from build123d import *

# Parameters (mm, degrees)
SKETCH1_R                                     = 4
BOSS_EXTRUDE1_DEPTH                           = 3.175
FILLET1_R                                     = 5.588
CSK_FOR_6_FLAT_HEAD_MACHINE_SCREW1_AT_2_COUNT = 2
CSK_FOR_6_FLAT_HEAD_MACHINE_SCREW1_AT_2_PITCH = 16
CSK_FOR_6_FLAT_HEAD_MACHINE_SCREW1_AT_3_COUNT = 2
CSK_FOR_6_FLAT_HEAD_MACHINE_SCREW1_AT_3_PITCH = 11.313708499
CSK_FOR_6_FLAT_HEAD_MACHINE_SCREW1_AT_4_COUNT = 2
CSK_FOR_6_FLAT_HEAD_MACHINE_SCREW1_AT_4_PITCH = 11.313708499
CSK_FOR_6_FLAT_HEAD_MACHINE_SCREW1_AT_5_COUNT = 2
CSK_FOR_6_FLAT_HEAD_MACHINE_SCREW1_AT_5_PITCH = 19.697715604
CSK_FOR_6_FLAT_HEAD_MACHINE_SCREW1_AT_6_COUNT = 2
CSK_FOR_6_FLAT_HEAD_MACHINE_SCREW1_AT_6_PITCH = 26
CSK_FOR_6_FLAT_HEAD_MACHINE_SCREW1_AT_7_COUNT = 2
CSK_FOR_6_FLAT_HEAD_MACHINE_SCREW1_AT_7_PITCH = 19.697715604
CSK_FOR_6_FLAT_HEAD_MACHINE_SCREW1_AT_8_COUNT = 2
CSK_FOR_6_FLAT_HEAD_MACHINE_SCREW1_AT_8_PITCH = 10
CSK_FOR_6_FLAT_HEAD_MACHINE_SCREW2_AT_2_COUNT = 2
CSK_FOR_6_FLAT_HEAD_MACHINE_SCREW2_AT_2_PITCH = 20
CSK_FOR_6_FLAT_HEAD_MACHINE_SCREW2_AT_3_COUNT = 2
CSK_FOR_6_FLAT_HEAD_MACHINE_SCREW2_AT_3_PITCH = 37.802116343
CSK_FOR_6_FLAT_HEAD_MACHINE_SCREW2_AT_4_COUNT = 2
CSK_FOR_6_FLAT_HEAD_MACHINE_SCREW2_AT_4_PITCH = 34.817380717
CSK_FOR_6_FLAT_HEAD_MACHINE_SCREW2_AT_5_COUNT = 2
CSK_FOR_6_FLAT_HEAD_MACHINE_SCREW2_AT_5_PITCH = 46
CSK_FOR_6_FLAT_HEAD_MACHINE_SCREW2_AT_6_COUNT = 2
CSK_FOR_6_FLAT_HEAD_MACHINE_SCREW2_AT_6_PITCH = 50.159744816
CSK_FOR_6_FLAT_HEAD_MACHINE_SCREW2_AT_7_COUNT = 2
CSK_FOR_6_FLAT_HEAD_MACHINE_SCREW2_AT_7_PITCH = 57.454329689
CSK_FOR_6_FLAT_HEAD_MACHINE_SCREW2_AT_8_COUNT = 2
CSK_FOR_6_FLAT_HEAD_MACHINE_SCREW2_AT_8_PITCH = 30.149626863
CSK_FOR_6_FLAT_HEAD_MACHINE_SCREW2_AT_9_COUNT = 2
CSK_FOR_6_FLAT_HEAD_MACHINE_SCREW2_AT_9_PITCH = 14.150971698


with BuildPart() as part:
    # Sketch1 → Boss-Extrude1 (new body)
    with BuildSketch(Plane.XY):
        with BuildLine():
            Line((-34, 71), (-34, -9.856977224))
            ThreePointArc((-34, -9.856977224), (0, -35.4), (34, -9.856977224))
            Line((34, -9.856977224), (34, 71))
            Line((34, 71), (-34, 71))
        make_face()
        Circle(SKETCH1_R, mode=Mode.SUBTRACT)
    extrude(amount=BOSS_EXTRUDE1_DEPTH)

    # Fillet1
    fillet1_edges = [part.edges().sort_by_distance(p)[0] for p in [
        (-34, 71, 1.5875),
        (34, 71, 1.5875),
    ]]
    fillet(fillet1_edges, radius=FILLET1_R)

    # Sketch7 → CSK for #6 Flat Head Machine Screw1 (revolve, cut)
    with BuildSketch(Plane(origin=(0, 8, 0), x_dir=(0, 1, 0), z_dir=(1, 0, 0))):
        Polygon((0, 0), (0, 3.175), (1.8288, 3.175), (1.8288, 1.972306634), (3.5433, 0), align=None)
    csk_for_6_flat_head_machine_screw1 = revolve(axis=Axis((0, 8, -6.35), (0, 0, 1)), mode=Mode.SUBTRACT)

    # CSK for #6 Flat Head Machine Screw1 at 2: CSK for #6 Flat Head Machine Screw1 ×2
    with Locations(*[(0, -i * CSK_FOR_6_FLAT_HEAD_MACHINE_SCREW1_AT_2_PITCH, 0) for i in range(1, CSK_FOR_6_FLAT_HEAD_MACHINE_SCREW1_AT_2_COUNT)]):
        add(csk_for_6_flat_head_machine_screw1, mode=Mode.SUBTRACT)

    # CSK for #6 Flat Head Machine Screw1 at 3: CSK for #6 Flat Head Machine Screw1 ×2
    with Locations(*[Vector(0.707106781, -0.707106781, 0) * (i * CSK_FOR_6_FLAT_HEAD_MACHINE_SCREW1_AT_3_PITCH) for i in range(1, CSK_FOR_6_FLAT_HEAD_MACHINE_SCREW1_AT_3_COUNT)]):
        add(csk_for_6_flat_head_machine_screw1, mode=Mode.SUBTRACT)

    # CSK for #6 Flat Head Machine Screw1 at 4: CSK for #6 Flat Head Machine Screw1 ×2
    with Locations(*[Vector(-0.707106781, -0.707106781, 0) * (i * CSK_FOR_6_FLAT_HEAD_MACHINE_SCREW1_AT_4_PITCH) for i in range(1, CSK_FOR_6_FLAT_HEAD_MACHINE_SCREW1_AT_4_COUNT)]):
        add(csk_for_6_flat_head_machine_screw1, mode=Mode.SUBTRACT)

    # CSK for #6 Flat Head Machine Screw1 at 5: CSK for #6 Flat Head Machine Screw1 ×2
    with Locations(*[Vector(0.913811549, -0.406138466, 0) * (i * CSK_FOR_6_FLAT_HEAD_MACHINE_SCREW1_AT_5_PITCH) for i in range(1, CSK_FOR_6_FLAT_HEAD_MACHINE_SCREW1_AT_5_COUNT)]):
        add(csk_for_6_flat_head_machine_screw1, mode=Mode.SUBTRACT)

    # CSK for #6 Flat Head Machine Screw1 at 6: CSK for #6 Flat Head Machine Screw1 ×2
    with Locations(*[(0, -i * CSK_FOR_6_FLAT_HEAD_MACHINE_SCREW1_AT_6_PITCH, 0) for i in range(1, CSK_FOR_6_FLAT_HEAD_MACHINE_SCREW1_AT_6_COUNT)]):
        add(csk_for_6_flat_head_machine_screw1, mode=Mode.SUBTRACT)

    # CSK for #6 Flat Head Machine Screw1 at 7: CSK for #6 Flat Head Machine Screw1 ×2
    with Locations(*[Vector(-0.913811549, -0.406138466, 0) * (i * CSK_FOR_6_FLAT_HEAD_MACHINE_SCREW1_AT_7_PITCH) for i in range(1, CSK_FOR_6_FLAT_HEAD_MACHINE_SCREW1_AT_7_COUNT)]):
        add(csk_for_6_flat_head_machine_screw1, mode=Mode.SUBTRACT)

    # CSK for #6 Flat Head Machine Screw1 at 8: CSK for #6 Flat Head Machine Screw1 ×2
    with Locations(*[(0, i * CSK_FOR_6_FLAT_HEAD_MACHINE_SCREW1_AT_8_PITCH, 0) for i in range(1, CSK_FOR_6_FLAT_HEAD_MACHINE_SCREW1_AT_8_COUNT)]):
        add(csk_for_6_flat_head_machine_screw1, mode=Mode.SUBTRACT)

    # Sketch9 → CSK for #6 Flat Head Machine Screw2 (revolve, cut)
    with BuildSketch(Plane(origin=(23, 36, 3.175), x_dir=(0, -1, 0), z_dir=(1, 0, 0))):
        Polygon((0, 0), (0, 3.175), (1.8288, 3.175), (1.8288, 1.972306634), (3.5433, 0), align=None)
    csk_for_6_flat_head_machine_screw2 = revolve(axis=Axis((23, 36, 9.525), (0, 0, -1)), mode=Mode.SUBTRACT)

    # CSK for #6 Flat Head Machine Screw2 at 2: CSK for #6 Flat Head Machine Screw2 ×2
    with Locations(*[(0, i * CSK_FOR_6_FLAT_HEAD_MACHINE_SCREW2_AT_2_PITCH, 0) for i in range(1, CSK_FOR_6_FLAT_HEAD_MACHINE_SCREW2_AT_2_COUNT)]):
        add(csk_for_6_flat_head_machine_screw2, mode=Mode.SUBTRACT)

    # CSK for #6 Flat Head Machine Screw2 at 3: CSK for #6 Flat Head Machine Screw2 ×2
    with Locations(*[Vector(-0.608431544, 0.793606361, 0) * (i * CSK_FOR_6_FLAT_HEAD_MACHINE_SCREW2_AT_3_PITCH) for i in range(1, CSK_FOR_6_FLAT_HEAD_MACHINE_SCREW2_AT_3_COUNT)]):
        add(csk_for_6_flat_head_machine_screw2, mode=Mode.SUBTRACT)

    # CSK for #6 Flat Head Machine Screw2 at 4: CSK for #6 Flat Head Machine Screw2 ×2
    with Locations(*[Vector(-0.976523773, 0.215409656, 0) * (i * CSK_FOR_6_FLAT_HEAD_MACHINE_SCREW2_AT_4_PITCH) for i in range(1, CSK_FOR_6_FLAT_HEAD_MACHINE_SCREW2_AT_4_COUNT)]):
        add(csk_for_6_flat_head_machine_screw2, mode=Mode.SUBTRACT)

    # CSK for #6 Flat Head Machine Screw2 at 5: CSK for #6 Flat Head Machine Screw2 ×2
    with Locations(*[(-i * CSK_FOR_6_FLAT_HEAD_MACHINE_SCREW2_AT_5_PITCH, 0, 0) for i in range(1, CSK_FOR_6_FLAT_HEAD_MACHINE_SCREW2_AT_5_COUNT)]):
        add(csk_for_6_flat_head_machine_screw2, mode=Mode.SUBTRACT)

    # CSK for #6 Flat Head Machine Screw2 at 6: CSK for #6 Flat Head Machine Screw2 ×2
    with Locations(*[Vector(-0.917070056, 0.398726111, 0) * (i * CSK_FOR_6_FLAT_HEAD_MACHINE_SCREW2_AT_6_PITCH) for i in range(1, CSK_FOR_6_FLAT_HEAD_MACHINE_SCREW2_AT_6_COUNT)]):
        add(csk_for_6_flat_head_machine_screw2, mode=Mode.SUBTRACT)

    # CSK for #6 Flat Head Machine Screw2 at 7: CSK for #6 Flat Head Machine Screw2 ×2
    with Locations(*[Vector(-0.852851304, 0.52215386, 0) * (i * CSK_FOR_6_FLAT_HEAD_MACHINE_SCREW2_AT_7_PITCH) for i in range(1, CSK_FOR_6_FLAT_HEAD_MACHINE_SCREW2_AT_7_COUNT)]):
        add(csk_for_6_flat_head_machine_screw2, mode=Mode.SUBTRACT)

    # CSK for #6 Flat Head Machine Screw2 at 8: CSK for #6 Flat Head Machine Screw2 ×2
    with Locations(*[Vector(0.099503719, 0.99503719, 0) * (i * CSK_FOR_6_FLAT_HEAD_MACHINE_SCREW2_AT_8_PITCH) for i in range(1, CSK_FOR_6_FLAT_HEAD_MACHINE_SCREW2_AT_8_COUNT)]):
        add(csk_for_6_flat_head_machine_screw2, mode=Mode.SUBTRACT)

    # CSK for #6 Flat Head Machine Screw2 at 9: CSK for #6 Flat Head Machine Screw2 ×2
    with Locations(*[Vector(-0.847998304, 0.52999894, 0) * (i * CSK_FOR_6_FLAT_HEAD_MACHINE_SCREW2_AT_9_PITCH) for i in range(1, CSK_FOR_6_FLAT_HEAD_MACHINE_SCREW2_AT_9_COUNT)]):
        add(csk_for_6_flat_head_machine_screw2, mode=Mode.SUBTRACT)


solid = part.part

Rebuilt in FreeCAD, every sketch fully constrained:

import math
import FreeCAD as App
import Part
import Sketcher
Q = App.Units.Quantity


def edges_at(feature, points):
    """Names of the edges that pass closest to the given points."""
    edges = feature.Shape.Edges
    near = lambda p: min(range(len(edges)), key=lambda i: edges[i].distToShape(Part.Vertex(*p))[0])
    return sorted({f"Edge{near(p) + 1}" for p in points})


def add_polygon(sketch, points):
    """Adds a closed chain of lines whose ends are joined by coincident constraints."""
    first, n = sketch.GeometryCount, len(points)
    for a, b in zip(points, points[1:] + points[:1]):
        sketch.addGeometry(Part.LineSegment(App.Vector(*a, 0), App.Vector(*b, 0)), False)
    for i in range(n):
        sketch.addConstraint(Sketcher.Constraint("Coincident", first + i, 2, first + (i + 1) % n, 1))

doc = App.newDocument("Part")
body = doc.addObject("PartDesign::Body", "Body")

# Sketch on XY plane
sketch1 = body.newObject("Sketcher::SketchObject", "Sketch")
sketch1.AttachmentSupport = (doc.getObject("XY_Plane"), [""])
sketch1.MapMode = "FlatFace"
sketch1.addGeometry(Part.LineSegment(App.Vector(-34, 71, 0), App.Vector(-34, -9.9, 0)), False)
sketch1.addGeometry(Part.ArcOfCircle(Part.Circle(App.Vector(0, 0, 0), App.Vector(0, 0, 1), 35.4), math.radians(-164), math.radians(-16)), False)
sketch1.addGeometry(Part.LineSegment(App.Vector(34, -9.9, 0), App.Vector(34, 71, 0)), False)
sketch1.addGeometry(Part.LineSegment(App.Vector(34, 71, 0), App.Vector(-34, 71, 0)), False)
sketch1.addGeometry(Part.Circle(App.Vector(0, 0, 0), App.Vector(0, 0, 1), 4), False)
sketch1.addConstraint(Sketcher.Constraint("Coincident", 0, 2, 1, 1))
sketch1.addConstraint(Sketcher.Constraint("Coincident", 1, 2, 2, 1))
sketch1.addConstraint(Sketcher.Constraint("Coincident", 2, 2, 3, 1))
sketch1.addConstraint(Sketcher.Constraint("Coincident", 3, 2, 0, 1))
sketch1.addConstraint(Sketcher.Constraint("Vertical", 0))
sketch1.addConstraint(Sketcher.Constraint("Vertical", 2))
sketch1.addConstraint(Sketcher.Constraint("Horizontal", 3))
sketch1.addConstraint(Sketcher.Constraint("Coincident", 1, 3, -1, 1))
sketch1.addConstraint(Sketcher.Constraint("Coincident", 4, 3, -1, 1))
sketch1.addConstraint(Sketcher.Constraint("Horizontal", 0, 2, 1, 2))
sketch1.addConstraint(Sketcher.Constraint("Diameter", 4, 8.0))
sketch1.addConstraint(Sketcher.Constraint("Radius", 1, 35.4))
sketch1.addConstraint(Sketcher.Constraint("DistanceX", 3, 2, 3, 1, 68.0))
sketch1.addConstraint(Sketcher.Constraint("DistanceY", -1, 1, 2, 2, 71.0))
pad1 = body.newObject("PartDesign::Pad", "Pad")
pad1.Profile = sketch1
pad1.Length = 3.175
doc.recompute()

fillet = body.newObject("PartDesign::Fillet", "Fillet")
fillet.Base = (pad1, edges_at(pad1, [(-34, 71, 1.587), (34, 71, 1.587)]))
fillet.Radius = 5.588

# Sketch on YZ plane
sketch2 = body.newObject("Sketcher::SketchObject", "Sketch001")
sketch2.AttachmentSupport = (doc.getObject("YZ_Plane"), [""])
sketch2.MapMode = "FlatFace"
add_polygon(sketch2, [(8, 3.2), (8, 0), (11.5, 0), (9.8, 2), (9.8, 3.2)])  # lines 0-4
sketch2.addGeometry(Part.LineSegment(App.Vector(8, 0, 0), App.Vector(8, 3.2, 0)), True)  # axis
sketch2.addConstraint(Sketcher.Constraint("Vertical", 0))
sketch2.addConstraint(Sketcher.Constraint("Horizontal", 1))
sketch2.addConstraint(Sketcher.Constraint("Vertical", 3))
sketch2.addConstraint(Sketcher.Constraint("Horizontal", 4))
sketch2.addConstraint(Sketcher.Constraint("Vertical", 5))
sketch2.addConstraint(Sketcher.Constraint("Coincident", 5, 1, 0, 2))
sketch2.addConstraint(Sketcher.Constraint("PointOnObject", 0, 2, -1))
sketch2.addConstraint(Sketcher.Constraint("Horizontal", 3, 2, 5, 2))
sketch2.addConstraint(Sketcher.Constraint("Angle", 2, Q("131 deg")))
sketch2.addConstraint(Sketcher.Constraint("DistanceX", -1, 1, 0, 2, 8.0))
sketch2.addConstraint(Sketcher.Constraint("DistanceY", 0, 2, 0, 1, 3.175))
sketch2.addConstraint(Sketcher.Constraint("DistanceX", 1, 1, 1, 2, 3.5433))
sketch2.addConstraint(Sketcher.Constraint("DistanceX", 4, 2, 4, 1, 1.8288))
groove = body.newObject("PartDesign::Groove", "Groove")
groove.Profile = sketch2
groove.ReferenceAxis = (sketch2, ["Axis0"])
groove.Angle = 360
doc.recompute()

linearpattern = body.newObject("PartDesign::LinearPattern", "LinearPattern")
linearpattern.Originals = [groove]
linearpattern.Direction = (doc.getObject("Y_Axis"), [""])
linearpattern.Mode = "offset"
linearpattern.Offset = 16
linearpattern.Occurrences = 2
linearpattern.Reversed = True
body.Tip = linearpattern
doc.recompute()

datumline = body.newObject("PartDesign::Line", "DatumLine")
datumline.Placement = App.Placement(App.Vector(0, 0, 0), App.Rotation(App.Vector(0, 0, 1), App.Vector(0.707106781, -0.707106781, 0)))
linearpattern2 = body.newObject("PartDesign::LinearPattern", "LinearPattern001")
linearpattern2.Originals = [groove]
linearpattern2.Direction = (datumline, [""])
linearpattern2.Mode = "offset"
linearpattern2.Offset = 11.313708
linearpattern2.Occurrences = 2
body.Tip = linearpattern2
doc.recompute()

datumline2 = body.newObject("PartDesign::Line", "DatumLine001")
datumline2.Placement = App.Placement(App.Vector(0, 0, 0), App.Rotation(App.Vector(0, 0, 1), App.Vector(-0.707106781, -0.707106781, 0)))
linearpattern3 = body.newObject("PartDesign::LinearPattern", "LinearPattern002")
linearpattern3.Originals = [groove]
linearpattern3.Direction = (datumline2, [""])
linearpattern3.Mode = "offset"
linearpattern3.Offset = 11.313708
linearpattern3.Occurrences = 2
body.Tip = linearpattern3
doc.recompute()

datumline3 = body.newObject("PartDesign::Line", "DatumLine002")
datumline3.Placement = App.Placement(App.Vector(0, 0, 0), App.Rotation(App.Vector(0, 0, 1), App.Vector(0.913811549, -0.406138466, 0)))
linearpattern4 = body.newObject("PartDesign::LinearPattern", "LinearPattern003")
linearpattern4.Originals = [groove]
linearpattern4.Direction = (datumline3, [""])
linearpattern4.Mode = "offset"
linearpattern4.Offset = 19.697716
linearpattern4.Occurrences = 2
body.Tip = linearpattern4
doc.recompute()

linearpattern5 = body.newObject("PartDesign::LinearPattern", "LinearPattern004")
linearpattern5.Originals = [groove]
linearpattern5.Direction = (doc.getObject("Y_Axis"), [""])
linearpattern5.Mode = "offset"
linearpattern5.Offset = 26
linearpattern5.Occurrences = 2
linearpattern5.Reversed = True
body.Tip = linearpattern5
doc.recompute()

datumline4 = body.newObject("PartDesign::Line", "DatumLine003")
datumline4.Placement = App.Placement(App.Vector(0, 0, 0), App.Rotation(App.Vector(0, 0, 1), App.Vector(-0.913811549, -0.406138466, 0)))
linearpattern6 = body.newObject("PartDesign::LinearPattern", "LinearPattern005")
linearpattern6.Originals = [groove]
linearpattern6.Direction = (datumline4, [""])
linearpattern6.Mode = "offset"
linearpattern6.Offset = 19.697716
linearpattern6.Occurrences = 2
body.Tip = linearpattern6
doc.recompute()

linearpattern7 = body.newObject("PartDesign::LinearPattern", "LinearPattern006")
linearpattern7.Originals = [groove]
linearpattern7.Direction = (doc.getObject("Y_Axis"), [""])
linearpattern7.Mode = "offset"
linearpattern7.Offset = 10
linearpattern7.Occurrences = 2
body.Tip = linearpattern7

# Sketch on YZ plane
sketch3 = body.newObject("Sketcher::SketchObject", "Sketch002")
sketch3.AttachmentSupport = (doc.getObject("YZ_Plane"), [""])
sketch3.MapMode = "FlatFace"
sketch3.AttachmentOffset = App.Placement(App.Vector(0, 0, 23), App.Rotation())
add_polygon(sketch3, [(36, 0), (36, 3.2), (32.5, 3.2), (34.2, 1.2), (34.2, 0)])  # lines 0-4
sketch3.addGeometry(Part.LineSegment(App.Vector(36, 3.2, 0), App.Vector(36, 0, 0)), True)  # axis
sketch3.addConstraint(Sketcher.Constraint("Vertical", 0))
sketch3.addConstraint(Sketcher.Constraint("Horizontal", 1))
sketch3.addConstraint(Sketcher.Constraint("Vertical", 3))
sketch3.addConstraint(Sketcher.Constraint("Horizontal", 4))
sketch3.addConstraint(Sketcher.Constraint("Vertical", 5))
sketch3.addConstraint(Sketcher.Constraint("Coincident", 5, 1, 0, 2))
sketch3.addConstraint(Sketcher.Constraint("PointOnObject", 3, 2, -1))
sketch3.addConstraint(Sketcher.Constraint("PointOnObject", 5, 2, -1))
sketch3.addConstraint(Sketcher.Constraint("Angle", 2, Q("-49 deg")))
sketch3.addConstraint(Sketcher.Constraint("DistanceX", -1, 1, 0, 2, 36.0))
sketch3.addConstraint(Sketcher.Constraint("DistanceY", 0, 1, 0, 2, 3.175))
sketch3.addConstraint(Sketcher.Constraint("DistanceX", 1, 2, 1, 1, 3.5433))
sketch3.addConstraint(Sketcher.Constraint("DistanceX", 4, 1, 4, 2, 1.8288))
groove2 = body.newObject("PartDesign::Groove", "Groove001")
groove2.Profile = sketch3
groove2.ReferenceAxis = (sketch3, ["Axis0"])
groove2.Angle = 360
doc.recompute()

linearpattern8 = body.newObject("PartDesign::LinearPattern", "LinearPattern007")
linearpattern8.Originals = [groove2]
linearpattern8.Direction = (doc.getObject("Y_Axis"), [""])
linearpattern8.Mode = "offset"
linearpattern8.Offset = 20
linearpattern8.Occurrences = 2
body.Tip = linearpattern8
doc.recompute()

datumline5 = body.newObject("PartDesign::Line", "DatumLine004")
datumline5.Placement = App.Placement(App.Vector(0, 0, 0), App.Rotation(App.Vector(0, 0, 1), App.Vector(-0.608431544, 0.793606361, 0)))
linearpattern9 = body.newObject("PartDesign::LinearPattern", "LinearPattern008")
linearpattern9.Originals = [groove2]
linearpattern9.Direction = (datumline5, [""])
linearpattern9.Mode = "offset"
linearpattern9.Offset = 37.802116
linearpattern9.Occurrences = 2
body.Tip = linearpattern9
doc.recompute()

datumline6 = body.newObject("PartDesign::Line", "DatumLine005")
datumline6.Placement = App.Placement(App.Vector(0, 0, 0), App.Rotation(App.Vector(0, 0, 1), App.Vector(-0.976523773, 0.215409656, 0)))
linearpattern10 = body.newObject("PartDesign::LinearPattern", "LinearPattern009")
linearpattern10.Originals = [groove2]
linearpattern10.Direction = (datumline6, [""])
linearpattern10.Mode = "offset"
linearpattern10.Offset = 34.817381
linearpattern10.Occurrences = 2
body.Tip = linearpattern10
doc.recompute()

linearpattern11 = body.newObject("PartDesign::LinearPattern", "LinearPattern010")
linearpattern11.Originals = [groove2]
linearpattern11.Direction = (doc.getObject("X_Axis"), [""])
linearpattern11.Mode = "offset"
linearpattern11.Offset = 46
linearpattern11.Occurrences = 2
linearpattern11.Reversed = True
body.Tip = linearpattern11
doc.recompute()

datumline7 = body.newObject("PartDesign::Line", "DatumLine006")
datumline7.Placement = App.Placement(App.Vector(0, 0, 0), App.Rotation(App.Vector(0, 0, 1), App.Vector(-0.917070056, 0.398726111, 0)))
linearpattern12 = body.newObject("PartDesign::LinearPattern", "LinearPattern011")
linearpattern12.Originals = [groove2]
linearpattern12.Direction = (datumline7, [""])
linearpattern12.Mode = "offset"
linearpattern12.Offset = 50.159745
linearpattern12.Occurrences = 2
body.Tip = linearpattern12
doc.recompute()

datumline8 = body.newObject("PartDesign::Line", "DatumLine007")
datumline8.Placement = App.Placement(App.Vector(0, 0, 0), App.Rotation(App.Vector(0, 0, 1), App.Vector(-0.852851304, 0.52215386, 0)))
linearpattern13 = body.newObject("PartDesign::LinearPattern", "LinearPattern012")
linearpattern13.Originals = [groove2]
linearpattern13.Direction = (datumline8, [""])
linearpattern13.Mode = "offset"
linearpattern13.Offset = 57.45433
linearpattern13.Occurrences = 2
body.Tip = linearpattern13
doc.recompute()

datumline9 = body.newObject("PartDesign::Line", "DatumLine008")
datumline9.Placement = App.Placement(App.Vector(0, 0, 0), App.Rotation(App.Vector(0, 0, 1), App.Vector(0.099503719, 0.99503719, 0)))
linearpattern14 = body.newObject("PartDesign::LinearPattern", "LinearPattern013")
linearpattern14.Originals = [groove2]
linearpattern14.Direction = (datumline9, [""])
linearpattern14.Mode = "offset"
linearpattern14.Offset = 30.149627
linearpattern14.Occurrences = 2
body.Tip = linearpattern14
doc.recompute()

datumline10 = body.newObject("PartDesign::Line", "DatumLine009")
datumline10.Placement = App.Placement(App.Vector(0, 0, 0), App.Rotation(App.Vector(0, 0, 1), App.Vector(-0.847998304, 0.52999894, 0)))
linearpattern15 = body.newObject("PartDesign::LinearPattern", "LinearPattern014")
linearpattern15.Originals = [groove2]
linearpattern15.Direction = (datumline10, [""])
linearpattern15.Mode = "offset"
linearpattern15.Offset = 14.150972
linearpattern15.Occurrences = 2
body.Tip = linearpattern15

doc.recompute()
